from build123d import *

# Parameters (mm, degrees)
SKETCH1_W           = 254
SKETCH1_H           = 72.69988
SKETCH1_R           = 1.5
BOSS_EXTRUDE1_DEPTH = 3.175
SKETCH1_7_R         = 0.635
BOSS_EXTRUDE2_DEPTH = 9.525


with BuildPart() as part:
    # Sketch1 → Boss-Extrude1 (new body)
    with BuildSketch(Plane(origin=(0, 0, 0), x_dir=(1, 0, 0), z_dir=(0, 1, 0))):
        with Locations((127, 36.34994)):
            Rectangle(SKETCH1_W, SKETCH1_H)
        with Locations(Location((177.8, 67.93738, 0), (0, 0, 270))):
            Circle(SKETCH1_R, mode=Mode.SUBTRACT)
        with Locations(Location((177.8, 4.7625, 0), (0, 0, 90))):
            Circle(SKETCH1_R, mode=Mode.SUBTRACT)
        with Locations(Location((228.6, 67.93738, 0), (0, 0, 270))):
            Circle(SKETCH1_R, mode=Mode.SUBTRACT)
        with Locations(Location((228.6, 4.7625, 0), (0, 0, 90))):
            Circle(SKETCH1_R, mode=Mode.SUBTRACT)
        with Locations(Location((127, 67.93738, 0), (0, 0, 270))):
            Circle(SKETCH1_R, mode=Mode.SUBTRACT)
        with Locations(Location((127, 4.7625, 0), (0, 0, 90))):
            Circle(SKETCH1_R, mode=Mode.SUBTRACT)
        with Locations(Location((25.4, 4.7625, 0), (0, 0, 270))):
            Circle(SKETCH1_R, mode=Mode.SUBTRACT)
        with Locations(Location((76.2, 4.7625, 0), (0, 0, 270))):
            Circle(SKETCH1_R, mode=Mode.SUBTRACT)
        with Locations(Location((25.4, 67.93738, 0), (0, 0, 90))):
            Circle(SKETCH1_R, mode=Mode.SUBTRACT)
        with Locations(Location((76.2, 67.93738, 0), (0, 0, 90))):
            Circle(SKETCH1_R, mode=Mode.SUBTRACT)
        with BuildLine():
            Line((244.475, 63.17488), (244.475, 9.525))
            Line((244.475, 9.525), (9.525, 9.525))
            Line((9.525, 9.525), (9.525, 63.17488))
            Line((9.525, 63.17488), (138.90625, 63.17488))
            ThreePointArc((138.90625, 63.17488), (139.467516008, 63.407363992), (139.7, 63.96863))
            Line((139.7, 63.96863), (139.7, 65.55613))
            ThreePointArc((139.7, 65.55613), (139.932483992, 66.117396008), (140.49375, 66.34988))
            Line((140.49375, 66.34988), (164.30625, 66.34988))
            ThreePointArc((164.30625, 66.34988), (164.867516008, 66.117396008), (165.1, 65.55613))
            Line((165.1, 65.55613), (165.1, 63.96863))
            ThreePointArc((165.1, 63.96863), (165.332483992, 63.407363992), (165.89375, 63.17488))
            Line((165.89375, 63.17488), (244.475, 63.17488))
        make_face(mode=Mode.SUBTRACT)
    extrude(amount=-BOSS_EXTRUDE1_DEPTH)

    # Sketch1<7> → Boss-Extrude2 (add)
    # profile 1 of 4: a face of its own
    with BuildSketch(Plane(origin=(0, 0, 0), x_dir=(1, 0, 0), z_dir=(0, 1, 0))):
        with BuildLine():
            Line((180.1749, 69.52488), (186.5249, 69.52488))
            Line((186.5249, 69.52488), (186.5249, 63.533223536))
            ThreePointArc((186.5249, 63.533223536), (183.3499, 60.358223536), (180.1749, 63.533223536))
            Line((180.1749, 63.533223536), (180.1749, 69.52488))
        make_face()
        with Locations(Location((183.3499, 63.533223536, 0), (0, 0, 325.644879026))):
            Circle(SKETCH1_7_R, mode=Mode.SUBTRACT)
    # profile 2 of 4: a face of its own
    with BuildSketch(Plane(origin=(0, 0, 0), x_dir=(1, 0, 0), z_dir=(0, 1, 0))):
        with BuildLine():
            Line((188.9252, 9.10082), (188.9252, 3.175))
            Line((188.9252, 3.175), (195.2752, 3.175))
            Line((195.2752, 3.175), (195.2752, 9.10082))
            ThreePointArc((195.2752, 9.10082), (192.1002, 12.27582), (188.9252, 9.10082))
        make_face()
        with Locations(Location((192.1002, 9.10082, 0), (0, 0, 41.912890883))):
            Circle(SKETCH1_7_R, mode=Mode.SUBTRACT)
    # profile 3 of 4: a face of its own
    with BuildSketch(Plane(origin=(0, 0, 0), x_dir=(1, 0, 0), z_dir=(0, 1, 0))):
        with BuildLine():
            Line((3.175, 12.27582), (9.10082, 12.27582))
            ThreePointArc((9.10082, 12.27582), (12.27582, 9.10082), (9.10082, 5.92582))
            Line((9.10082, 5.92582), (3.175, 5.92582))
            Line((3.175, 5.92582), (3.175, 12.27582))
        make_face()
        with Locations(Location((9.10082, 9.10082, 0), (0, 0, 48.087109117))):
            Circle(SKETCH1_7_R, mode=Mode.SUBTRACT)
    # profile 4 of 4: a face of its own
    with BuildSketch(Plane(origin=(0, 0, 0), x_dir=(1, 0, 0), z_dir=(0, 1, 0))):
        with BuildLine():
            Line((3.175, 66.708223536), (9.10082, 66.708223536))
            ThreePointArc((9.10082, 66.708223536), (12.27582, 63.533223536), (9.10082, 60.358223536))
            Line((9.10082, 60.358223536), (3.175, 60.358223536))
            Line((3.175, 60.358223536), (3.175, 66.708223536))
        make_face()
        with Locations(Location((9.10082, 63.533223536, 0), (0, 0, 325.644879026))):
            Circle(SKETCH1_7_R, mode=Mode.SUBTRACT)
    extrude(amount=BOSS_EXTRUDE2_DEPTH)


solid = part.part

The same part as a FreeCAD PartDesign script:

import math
import FreeCAD as App
import Part
import Sketcher
Q = App.Units.Quantity

doc = App.newDocument("Part")
params = doc.addObject("Spreadsheet::Sheet", "Params")
for row, (alias, value) in enumerate([
    ("sketch1_width", "10 in"),
    ("sketch1_radius", "0.03125 in"),
    ("sketch1_width2", "9.25 in"),
    ("sketch1_width3", "3.09375 in"),
    ("sketch1_height", "0.0625 in"),
    ("pad1_length", "0.125 in"),
    ("sketch2_diameter", "0.05 in"),
    ("sketch2_radius", "0.125 in"),
    ("pad2_length", "0.375 in"),
], start=1):
    params.set(f"A{row}", alias)
    params.set(f"B{row}", "=" + value)
    params.setAlias(f"B{row}", alias)

body = doc.addObject("PartDesign::Body", "Body")

# Sketch on XZ plane
sketch1 = body.newObject("Sketcher::SketchObject", "Sketch")
sketch1.AttachmentSupport = (doc.getObject("XZ_Plane"), [""])
sketch1.MapMode = "FlatFace"
sketch1.addGeometry([
    Part.LineSegment(App.Vector(0, -72.69988, 0), App.Vector(0, 0, 0)),  # 0
    Part.LineSegment(App.Vector(0, 0, 0), App.Vector(254, 0, 0)),  # 1
    Part.LineSegment(App.Vector(254, 0, 0), App.Vector(254, -72.69988, 0)),  # 2
    Part.LineSegment(App.Vector(254, -72.69988, 0), App.Vector(0, -72.69988, 0)),  # 3
    Part.Circle(App.Vector(25.4, -4.7625, 0), App.Vector(0, 0, 1), 1.5),  # 4
    Part.Circle(App.Vector(76.2, -4.7625, 0), App.Vector(0, 0, 1), 1.5),  # 5
    Part.Circle(App.Vector(127, -4.7625, 0), App.Vector(0, 0, 1), 1.5),  # 6
    Part.Circle(App.Vector(177.8, -4.7625, 0), App.Vector(0, 0, 1), 1.5),  # 7
    Part.Circle(App.Vector(228.6, -4.7625, 0), App.Vector(0, 0, 1), 1.5),  # 8
    Part.Circle(App.Vector(25.4, -67.93738, 0), App.Vector(0, 0, 1), 1.5),  # 9
    Part.Circle(App.Vector(76.2, -67.93738, 0), App.Vector(0, 0, 1), 1.5),  # 10
    Part.LineSegment(App.Vector(165.89375, -63.17488, 0), App.Vector(244.475, -63.17488, 0)),  # 11
    Part.LineSegment(App.Vector(244.475, -63.17488, 0), App.Vector(244.475, -9.525, 0)),  # 12
    Part.LineSegment(App.Vector(244.475, -9.525, 0), App.Vector(9.525, -9.525, 0)),  # 13
    Part.LineSegment(App.Vector(9.525, -9.525, 0), App.Vector(9.525, -63.17488, 0)),  # 14
    Part.LineSegment(App.Vector(9.525, -63.17488, 0), App.Vector(138.90625, -63.17488, 0)),  # 15
    Part.ArcOfCircle(Part.Circle(App.Vector(138.90625, -63.96863, 0), App.Vector(0, 0, 1), 0.79375), math.radians(0), math.radians(90)),  # 16
    Part.LineSegment(App.Vector(139.7, -63.96863, 0), App.Vector(139.7, -65.55613, 0)),  # 17
    Part.ArcOfCircle(Part.Circle(App.Vector(140.49375, -65.55613, 0), App.Vector(0, 0, 1), 0.79375), math.radians(180), math.radians(270)),  # 18
    Part.LineSegment(App.Vector(140.49375, -66.34988, 0), App.Vector(164.30625, -66.34988, 0)),  # 19
    Part.ArcOfCircle(Part.Circle(App.Vector(164.30625, -65.55613, 0), App.Vector(0, 0, 1), 0.79375), math.radians(-90), math.radians(0)),  # 20
    Part.LineSegment(App.Vector(165.1, -65.55613, 0), App.Vector(165.1, -63.96863, 0)),  # 21
    Part.ArcOfCircle(Part.Circle(App.Vector(165.89375, -63.96863, 0), App.Vector(0, 0, 1), 0.79375), math.radians(90), math.radians(180)),  # 22
    Part.Circle(App.Vector(127, -67.93738, 0), App.Vector(0, 0, 1), 1.5),  # 23
    Part.Circle(App.Vector(177.8, -67.93738, 0), App.Vector(0, 0, 1), 1.5),  # 24
    Part.Circle(App.Vector(228.6, -67.93738, 0), App.Vector(0, 0, 1), 1.5),  # 25
], False)
sketch1.addConstraint([
    Sketcher.Constraint("Coincident", 0, 2, 1, 1),
    Sketcher.Constraint("Coincident", 1, 2, 2, 1),
    Sketcher.Constraint("Coincident", 2, 2, 3, 1),
    Sketcher.Constraint("Coincident", 3, 2, 0, 1),
    Sketcher.Constraint("Coincident", 11, 2, 12, 1),
    Sketcher.Constraint("Coincident", 12, 2, 13, 1),
    Sketcher.Constraint("Coincident", 13, 2, 14, 1),
    Sketcher.Constraint("Coincident", 14, 2, 15, 1),
    Sketcher.Constraint("Tangent", 15, 2, 16, 2),
    Sketcher.Constraint("Tangent", 16, 1, 17, 1),
    Sketcher.Constraint("Tangent", 17, 2, 18, 1),
    Sketcher.Constraint("Tangent", 18, 2, 19, 1),
    Sketcher.Constraint("Tangent", 19, 2, 20, 1),
    Sketcher.Constraint("Tangent", 20, 2, 21, 1),
    Sketcher.Constraint("Tangent", 21, 2, 22, 2),
    Sketcher.Constraint("Tangent", 22, 1, 11, 1),
    Sketcher.Constraint("Vertical", 0),
    Sketcher.Constraint("Horizontal", 1),
    Sketcher.Constraint("Vertical", 2),
    Sketcher.Constraint("Horizontal", 3),
    Sketcher.Constraint("Horizontal", 11),
    Sketcher.Constraint("Vertical", 12),
    Sketcher.Constraint("Horizontal", 13),
    Sketcher.Constraint("Vertical", 14),
    Sketcher.Constraint("Horizontal", 15),
    Sketcher.Constraint("Vertical", 17),
    Sketcher.Constraint("Horizontal", 19),
    Sketcher.Constraint("Vertical", 21),
    Sketcher.Constraint("Coincident", 0, 2, -1, 1),
    Sketcher.Constraint("Equal", 4, 5),
    Sketcher.Constraint("Equal", 5, 6),
    Sketcher.Constraint("Equal", 6, 7),
    Sketcher.Constraint("Equal", 7, 8),
    Sketcher.Constraint("Equal", 8, 9),
    Sketcher.Constraint("Equal", 9, 10),
    Sketcher.Constraint("Equal", 16, 18),
    Sketcher.Constraint("Equal", 18, 20),
    Sketcher.Constraint("Equal", 20, 22),
    Sketcher.Constraint("Equal", 10, 23),
    Sketcher.Constraint("Equal", 23, 24),
    Sketcher.Constraint("Equal", 24, 25),
    Sketcher.Constraint("Horizontal", 4, 3, 5, 3),
    Sketcher.Constraint("Horizontal", 5, 3, 6, 3),
    Sketcher.Constraint("Horizontal", 6, 3, 7, 3),
    Sketcher.Constraint("Horizontal", 7, 3, 8, 3),
    Sketcher.Constraint("Horizontal", 9, 3, 10, 3),
    Sketcher.Constraint("Horizontal", 16, 3, 22, 3),
    Sketcher.Constraint("Horizontal", 10, 3, 23, 3),
    Sketcher.Constraint("Horizontal", 23, 3, 24, 3),
    Sketcher.Constraint("Horizontal", 24, 3, 25, 3),
    Sketcher.Constraint("Vertical", 4, 3, 9, 3),
    Sketcher.Constraint("Vertical", 5, 3, 10, 3),
    Sketcher.Constraint("Vertical", 6, 3, 23, 3),
    Sketcher.Constraint("Vertical", 7, 3, 24, 3),
    Sketcher.Constraint("Vertical", 8, 3, 25, 3),
    Sketcher.Constraint("DistanceX", 1, 1, 1, 2, Q("10 in")),
    Sketcher.Constraint("DistanceX", -1, 1, 4, 3, Q("1 in")),
    Sketcher.Constraint("DistanceX", -1, 1, 5, 3, Q("3 in")),
    Sketcher.Constraint("DistanceX", -1, 1, 6, 3, Q("5 in")),
    Sketcher.Constraint("DistanceX", -1, 1, 7, 3, Q("7 in")),
    Sketcher.Constraint("DistanceX", -1, 1, 8, 3, Q("9 in")),
    Sketcher.Constraint("Radius", 16, Q("0.03125 in")),
    Sketcher.Constraint("DistanceX", 16, 3, 20, 3, Q("1 in")),
    Sketcher.Constraint("DistanceX", 13, 2, 13, 1, Q("9.25 in")),
    Sketcher.Constraint("DistanceX", -1, 1, 16, 1, Q("5.5 in")),
    Sketcher.Constraint("Diameter", 4, 3.0),
    Sketcher.Constraint("DistanceX", 11, 1, 11, 2, Q("3.09375 in")),
    Sketcher.Constraint("DistanceY", 17, 2, 17, 1, Q("0.0625 in")),
    Sketcher.Constraint("DistanceY", 0, 1, 0, 2, Q("2.8622 in")),
    Sketcher.Constraint("DistanceY", 12, 1, 12, 2, Q("2.1122 in")),
    Sketcher.Constraint("DistanceY", 4, 3, -1, 1, Q("0.1875 in")),
    Sketcher.Constraint("DistanceY", 12, 2, -1, 1, Q("0.375 in")),
    Sketcher.Constraint("DistanceY", 10, 3, 16, 3, Q("0.15625 in")),
])
sketch1.setExpression("Constraints[55]", "Params.sketch1_width")
sketch1.setExpression("Constraints[61]", "Params.sketch1_radius")
sketch1.setExpression("Constraints[63]", "Params.sketch1_width2")
sketch1.setExpression("Constraints[66]", "Params.sketch1_width3")
sketch1.setExpression("Constraints[67]", "Params.sketch1_height")
pad1 = body.newObject("PartDesign::Pad", "Pad")
pad1.Profile = sketch1
pad1.setExpression("Length", "Params.pad1_length")

# Sketch on XZ plane
sketch2 = body.newObject("Sketcher::SketchObject", "Sketch001")
sketch2.AttachmentSupport = (doc.getObject("XZ_Plane"), [""])
sketch2.MapMode = "FlatFace"
sketch2.addGeometry([
    Part.LineSegment(App.Vector(186.5249, -69.52488, 0), App.Vector(180.1749, -69.52488, 0)),  # 0
    Part.LineSegment(App.Vector(180.1749, -69.52488, 0), App.Vector(180.1749, -63.533224, 0)),  # 1
    Part.ArcOfCircle(Part.Circle(App.Vector(183.3499, -63.533224, 0), App.Vector(0, 0, 1), 3.175), math.radians(0), math.radians(180)),  # 2
    Part.LineSegment(App.Vector(186.5249, -63.533224, 0), App.Vector(186.5249, -69.52488, 0)),  # 3
    Part.Circle(App.Vector(183.3499, -63.533224, 0), App.Vector(0, 0, 1), 0.635),  # 4
    Part.LineSegment(App.Vector(188.9252, -9.10082, 0), App.Vector(188.9252, -3.175, 0)),  # 5
    Part.LineSegment(App.Vector(188.9252, -3.175, 0), App.Vector(195.2752, -3.175, 0)),  # 6
    Part.LineSegment(App.Vector(195.2752, -3.175, 0), App.Vector(195.2752, -9.10082, 0)),  # 7
    Part.ArcOfCircle(Part.Circle(App.Vector(192.1002, -9.10082, 0), App.Vector(0, 0, 1), 3.175), math.radians(180), math.radians(360)),  # 8
    Part.Circle(App.Vector(192.1002, -9.10082, 0), App.Vector(0, 0, 1), 0.635),  # 9
    Part.LineSegment(App.Vector(9.10082, -12.27582, 0), App.Vector(3.175, -12.27582, 0)),  # 10
    Part.LineSegment(App.Vector(3.175, -12.27582, 0), App.Vector(3.175, -5.92582, 0)),  # 11
    Part.LineSegment(App.Vector(3.175, -5.92582, 0), App.Vector(9.10082, -5.92582, 0)),  # 12
    Part.ArcOfCircle(Part.Circle(App.Vector(9.10082, -9.10082, 0), App.Vector(0, 0, 1), 3.175), math.radians(-90), math.radians(90)),  # 13
    Part.Circle(App.Vector(9.10082, -9.10082, 0), App.Vector(0, 0, 1), 0.635),  # 14
    Part.LineSegment(App.Vector(9.10082, -66.708224, 0), App.Vector(3.175, -66.708224, 0)),  # 15
    Part.LineSegment(App.Vector(3.175, -66.708224, 0), App.Vector(3.175, -60.358224, 0)),  # 16
    Part.LineSegment(App.Vector(3.175, -60.358224, 0), App.Vector(9.10082, -60.358224, 0)),  # 17
    Part.ArcOfCircle(Part.Circle(App.Vector(9.10082, -63.533224, 0), App.Vector(0, 0, 1), 3.175), math.radians(-90), math.radians(90)),  # 18
    Part.Circle(App.Vector(9.10082, -63.533224, 0), App.Vector(0, 0, 1), 0.635),  # 19
], False)
sketch2.addConstraint([
    Sketcher.Constraint("Coincident", 0, 2, 1, 1),
    Sketcher.Constraint("Tangent", 1, 2, 2, 2),
    Sketcher.Constraint("Tangent", 2, 1, 3, 1),
    Sketcher.Constraint("Coincident", 3, 2, 0, 1),
    Sketcher.Constraint("Coincident", 5, 2, 6, 1),
    Sketcher.Constraint("Coincident", 6, 2, 7, 1),
    Sketcher.Constraint("Tangent", 7, 2, 8, 2),
    Sketcher.Constraint("Tangent", 8, 1, 5, 1),
    Sketcher.Constraint("Coincident", 10, 2, 11, 1),
    Sketcher.Constraint("Coincident", 11, 2, 12, 1),
    Sketcher.Constraint("Tangent", 12, 2, 13, 2),
    Sketcher.Constraint("Tangent", 13, 1, 10, 1),
    Sketcher.Constraint("Coincident", 15, 2, 16, 1),
    Sketcher.Constraint("Coincident", 16, 2, 17, 1),
    Sketcher.Constraint("Tangent", 17, 2, 18, 2),
    Sketcher.Constraint("Tangent", 18, 1, 15, 1),
    Sketcher.Constraint("Horizontal", 0),
    Sketcher.Constraint("Vertical", 1),
    Sketcher.Constraint("Vertical", 3),
    Sketcher.Constraint("Vertical", 5),
    Sketcher.Constraint("Horizontal", 6),
    Sketcher.Constraint("Vertical", 7),
    Sketcher.Constraint("Horizontal", 10),
    Sketcher.Constraint("Vertical", 11),
    Sketcher.Constraint("Horizontal", 12),
    Sketcher.Constraint("Horizontal", 15),
    Sketcher.Constraint("Vertical", 16),
    Sketcher.Constraint("Horizontal", 17),
    Sketcher.Constraint("Coincident", 4, 3, 2, 3),
    Sketcher.Constraint("Coincident", 9, 3, 8, 3),
    Sketcher.Constraint("Coincident", 14, 3, 13, 3),
    Sketcher.Constraint("Coincident", 19, 3, 18, 3),
    Sketcher.Constraint("Equal", 2, 8),
    Sketcher.Constraint("Equal", 4, 9),
    Sketcher.Constraint("Equal", 8, 13),
    Sketcher.Constraint("Equal", 9, 14),
    Sketcher.Constraint("Equal", 13, 18),
    Sketcher.Constraint("Equal", 14, 19),
    Sketcher.Constraint("Horizontal", 9, 3, 13, 3),
    Sketcher.Constraint("Horizontal", 4, 3, 18, 3),
    Sketcher.Constraint("Vertical", 14, 3, 18, 3),
    Sketcher.Constraint("Vertical", 11, 2, 15, 2),
    Sketcher.Constraint("Equal", 17, 5),
    Sketcher.Constraint("Diameter", 4, Q("0.05 in")),
    Sketcher.Constraint("Radius", 2, Q("0.125 in")),
    Sketcher.Constraint("DistanceX", 10, 2, 10, 1, Q("0.2333 in")),
    Sketcher.Constraint("DistanceX", -1, 1, 8, 3, Q("7.563 in")),
    Sketcher.Constraint("DistanceY", 5, 2, -1, 1, Q("0.125 in")),
    Sketcher.Constraint("DistanceX", -1, 1, 10, 2, Q("0.125 in")),
    Sketcher.Constraint("DistanceX", -1, 1, 2, 3, Q("7.2185 in")),
    Sketcher.Constraint("DistanceY", 0, 2, -1, 1, Q("2.7372 in")),
    Sketcher.Constraint("DistanceY", 1, 1, 1, 2, 5.991656),
])
sketch2.setExpression("Constraints[43]", "Params.sketch2_diameter")
sketch2.setExpression("Constraints[44]", "Params.sketch2_radius")
pad2 = body.newObject("PartDesign::Pad", "Pad001")
pad2.Profile = sketch2
pad2.setExpression("Length", "Params.pad2_length")
pad2.Reversed = True

doc.recompute()
